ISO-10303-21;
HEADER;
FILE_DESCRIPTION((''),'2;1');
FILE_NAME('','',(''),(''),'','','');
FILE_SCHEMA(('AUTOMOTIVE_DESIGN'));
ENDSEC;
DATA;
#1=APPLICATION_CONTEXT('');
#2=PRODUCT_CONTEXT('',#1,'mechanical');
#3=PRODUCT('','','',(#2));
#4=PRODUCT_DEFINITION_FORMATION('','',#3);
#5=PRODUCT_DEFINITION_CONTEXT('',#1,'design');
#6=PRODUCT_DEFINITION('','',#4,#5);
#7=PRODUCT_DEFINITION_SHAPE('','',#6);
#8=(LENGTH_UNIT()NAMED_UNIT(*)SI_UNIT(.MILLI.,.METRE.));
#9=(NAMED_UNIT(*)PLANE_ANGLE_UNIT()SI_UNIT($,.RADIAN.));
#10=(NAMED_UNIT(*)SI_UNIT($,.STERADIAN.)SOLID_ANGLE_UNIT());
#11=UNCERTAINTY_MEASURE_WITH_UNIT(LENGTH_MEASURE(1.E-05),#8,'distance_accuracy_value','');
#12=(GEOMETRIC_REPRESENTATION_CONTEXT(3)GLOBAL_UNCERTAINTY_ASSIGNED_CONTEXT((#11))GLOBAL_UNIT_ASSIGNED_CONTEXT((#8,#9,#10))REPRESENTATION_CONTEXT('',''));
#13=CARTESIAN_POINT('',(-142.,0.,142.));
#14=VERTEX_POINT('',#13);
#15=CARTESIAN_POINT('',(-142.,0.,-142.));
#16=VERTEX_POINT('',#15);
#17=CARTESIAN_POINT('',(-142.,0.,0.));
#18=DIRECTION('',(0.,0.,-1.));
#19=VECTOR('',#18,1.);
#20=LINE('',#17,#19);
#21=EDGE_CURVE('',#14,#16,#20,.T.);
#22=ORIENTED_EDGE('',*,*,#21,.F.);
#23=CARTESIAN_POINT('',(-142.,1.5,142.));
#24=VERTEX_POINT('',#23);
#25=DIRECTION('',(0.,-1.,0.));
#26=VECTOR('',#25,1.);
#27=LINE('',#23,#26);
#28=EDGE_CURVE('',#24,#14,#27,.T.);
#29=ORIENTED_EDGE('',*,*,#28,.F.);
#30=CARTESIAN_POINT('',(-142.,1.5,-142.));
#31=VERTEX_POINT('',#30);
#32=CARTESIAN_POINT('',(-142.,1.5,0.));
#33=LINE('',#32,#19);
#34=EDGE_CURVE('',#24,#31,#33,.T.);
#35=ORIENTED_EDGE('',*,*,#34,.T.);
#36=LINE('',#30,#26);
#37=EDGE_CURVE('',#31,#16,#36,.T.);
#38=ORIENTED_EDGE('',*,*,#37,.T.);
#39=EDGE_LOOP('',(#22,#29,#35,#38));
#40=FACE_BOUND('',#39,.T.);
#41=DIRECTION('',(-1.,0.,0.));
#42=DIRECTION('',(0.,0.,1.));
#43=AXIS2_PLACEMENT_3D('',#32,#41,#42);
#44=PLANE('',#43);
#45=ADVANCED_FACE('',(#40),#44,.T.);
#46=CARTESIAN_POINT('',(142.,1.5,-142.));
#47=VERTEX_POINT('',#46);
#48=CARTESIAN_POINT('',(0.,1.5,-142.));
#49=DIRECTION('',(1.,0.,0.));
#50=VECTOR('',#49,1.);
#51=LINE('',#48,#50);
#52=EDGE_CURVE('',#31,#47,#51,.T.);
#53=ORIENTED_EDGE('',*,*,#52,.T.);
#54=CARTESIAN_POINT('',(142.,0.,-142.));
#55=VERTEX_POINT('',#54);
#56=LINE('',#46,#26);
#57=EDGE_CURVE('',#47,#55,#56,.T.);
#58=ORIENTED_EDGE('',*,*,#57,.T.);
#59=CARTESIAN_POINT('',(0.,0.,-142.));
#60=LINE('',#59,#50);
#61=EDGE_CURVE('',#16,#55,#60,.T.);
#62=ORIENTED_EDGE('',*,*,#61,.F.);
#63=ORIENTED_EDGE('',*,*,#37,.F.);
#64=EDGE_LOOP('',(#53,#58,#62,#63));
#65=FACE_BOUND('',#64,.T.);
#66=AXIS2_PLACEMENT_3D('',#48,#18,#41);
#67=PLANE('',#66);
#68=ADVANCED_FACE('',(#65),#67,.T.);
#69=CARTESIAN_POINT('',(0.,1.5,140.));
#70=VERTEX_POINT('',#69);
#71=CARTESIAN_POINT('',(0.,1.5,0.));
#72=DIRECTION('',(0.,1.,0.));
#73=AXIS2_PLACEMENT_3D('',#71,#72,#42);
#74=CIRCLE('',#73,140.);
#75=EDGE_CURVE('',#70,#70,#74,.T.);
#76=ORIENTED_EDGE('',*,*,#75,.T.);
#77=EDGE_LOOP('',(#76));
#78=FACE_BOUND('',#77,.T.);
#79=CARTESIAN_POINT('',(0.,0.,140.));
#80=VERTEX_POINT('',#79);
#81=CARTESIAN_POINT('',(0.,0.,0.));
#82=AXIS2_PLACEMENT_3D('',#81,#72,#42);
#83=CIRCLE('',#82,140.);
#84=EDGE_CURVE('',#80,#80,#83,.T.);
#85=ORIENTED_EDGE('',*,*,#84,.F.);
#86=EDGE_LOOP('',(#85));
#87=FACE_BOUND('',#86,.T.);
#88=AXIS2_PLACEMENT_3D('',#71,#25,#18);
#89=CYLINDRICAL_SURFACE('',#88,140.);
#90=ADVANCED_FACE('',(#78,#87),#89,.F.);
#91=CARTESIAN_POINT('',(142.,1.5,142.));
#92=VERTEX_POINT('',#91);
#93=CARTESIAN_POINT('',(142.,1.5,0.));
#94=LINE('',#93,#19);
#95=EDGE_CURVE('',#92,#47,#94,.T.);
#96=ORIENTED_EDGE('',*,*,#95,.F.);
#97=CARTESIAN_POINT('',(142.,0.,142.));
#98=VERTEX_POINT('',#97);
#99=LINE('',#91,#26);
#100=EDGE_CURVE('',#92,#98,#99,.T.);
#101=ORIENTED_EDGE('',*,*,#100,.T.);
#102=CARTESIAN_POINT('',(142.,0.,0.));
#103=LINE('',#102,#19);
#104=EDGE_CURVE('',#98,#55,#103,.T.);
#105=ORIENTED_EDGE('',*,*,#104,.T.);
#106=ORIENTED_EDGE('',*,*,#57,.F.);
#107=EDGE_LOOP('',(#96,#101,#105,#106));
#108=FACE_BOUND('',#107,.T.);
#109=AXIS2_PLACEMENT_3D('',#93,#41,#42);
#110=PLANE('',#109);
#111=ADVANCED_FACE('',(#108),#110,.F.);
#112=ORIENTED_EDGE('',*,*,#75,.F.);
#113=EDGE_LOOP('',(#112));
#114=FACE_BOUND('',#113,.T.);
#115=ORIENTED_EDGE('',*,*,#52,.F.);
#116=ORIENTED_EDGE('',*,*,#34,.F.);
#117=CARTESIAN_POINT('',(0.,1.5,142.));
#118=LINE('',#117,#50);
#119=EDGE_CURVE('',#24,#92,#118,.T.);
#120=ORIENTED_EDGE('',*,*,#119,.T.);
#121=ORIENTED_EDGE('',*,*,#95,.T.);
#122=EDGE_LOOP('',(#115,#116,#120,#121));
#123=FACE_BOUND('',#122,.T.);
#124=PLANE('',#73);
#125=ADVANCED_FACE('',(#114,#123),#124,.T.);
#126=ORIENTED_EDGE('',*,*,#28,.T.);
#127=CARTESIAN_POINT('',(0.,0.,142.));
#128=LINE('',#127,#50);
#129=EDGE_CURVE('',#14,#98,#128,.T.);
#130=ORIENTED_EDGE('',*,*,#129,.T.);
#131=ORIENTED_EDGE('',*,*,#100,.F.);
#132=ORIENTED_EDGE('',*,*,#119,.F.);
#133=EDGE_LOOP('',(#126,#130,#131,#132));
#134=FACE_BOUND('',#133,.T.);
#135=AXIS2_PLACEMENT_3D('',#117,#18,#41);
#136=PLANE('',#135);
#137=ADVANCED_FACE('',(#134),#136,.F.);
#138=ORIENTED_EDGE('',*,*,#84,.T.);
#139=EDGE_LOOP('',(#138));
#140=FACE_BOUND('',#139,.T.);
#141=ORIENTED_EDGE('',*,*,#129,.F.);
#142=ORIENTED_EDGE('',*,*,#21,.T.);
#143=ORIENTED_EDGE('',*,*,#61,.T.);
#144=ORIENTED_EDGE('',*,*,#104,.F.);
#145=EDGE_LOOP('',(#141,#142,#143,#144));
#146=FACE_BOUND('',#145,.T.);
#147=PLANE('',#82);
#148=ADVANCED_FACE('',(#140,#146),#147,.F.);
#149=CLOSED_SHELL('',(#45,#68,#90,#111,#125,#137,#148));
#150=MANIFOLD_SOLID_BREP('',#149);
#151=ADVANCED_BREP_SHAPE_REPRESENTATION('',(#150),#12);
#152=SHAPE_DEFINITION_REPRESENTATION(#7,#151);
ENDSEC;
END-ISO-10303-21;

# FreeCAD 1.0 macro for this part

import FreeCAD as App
import Part
import Sketcher

V = App.Vector


def add_polygon(sketch, points):
    """Adds a closed chain of lines whose ends are joined by coincident constraints."""
    first, n = sketch.GeometryCount, len(points)
    for a, b in zip(points, points[1:] + points[:1]):
        sketch.addGeometry(Part.LineSegment(App.Vector(*a, 0), App.Vector(*b, 0)), False)
    for i in range(n):
        sketch.addConstraint(Sketcher.Constraint("Coincident", first + i, 2, first + (i + 1) % n, 1))

doc = App.newDocument("Part")
body = doc.addObject("PartDesign::Body", "Body")

# Sketch on XZ plane
sketch1 = body.newObject("Sketcher::SketchObject", "Sketch")
sketch1.AttachmentSupport = (doc.getObject("XZ_Plane"), [""])
sketch1.MapMode = "FlatFace"
add_polygon(sketch1, [(-142, -142), (-142, 142), (142, 142), (142, -142)])  # lines 0-3
sketch1.addGeometry(Part.Circle(V(0, 0, 0), V(0, 0, 1), 140), False)  # 4
sketch1.addConstraint(Sketcher.Constraint("Vertical", 0))
sketch1.addConstraint(Sketcher.Constraint("Horizontal", 1))
sketch1.addConstraint(Sketcher.Constraint("Vertical", 2))
sketch1.addConstraint(Sketcher.Constraint("Horizontal", 3))
sketch1.addConstraint(Sketcher.Constraint("Coincident", 4, 3, -1, 1))
sketch1.addConstraint(Sketcher.Constraint("Symmetric", 0, 2, 2, 2, -1, 1))
sketch1.addConstraint(Sketcher.Constraint("Equal", 3, 0))
sketch1.addConstraint(Sketcher.Constraint("Diameter", 4, 280.0))
sketch1.addConstraint(Sketcher.Constraint("DistanceX", 1, 1, 1, 2, 284.0))
pad1 = body.newObject("PartDesign::Pad", "Pad")
pad1.Profile = sketch1
pad1.Length = 1.5
pad1.Reversed = True

doc.recompute()
